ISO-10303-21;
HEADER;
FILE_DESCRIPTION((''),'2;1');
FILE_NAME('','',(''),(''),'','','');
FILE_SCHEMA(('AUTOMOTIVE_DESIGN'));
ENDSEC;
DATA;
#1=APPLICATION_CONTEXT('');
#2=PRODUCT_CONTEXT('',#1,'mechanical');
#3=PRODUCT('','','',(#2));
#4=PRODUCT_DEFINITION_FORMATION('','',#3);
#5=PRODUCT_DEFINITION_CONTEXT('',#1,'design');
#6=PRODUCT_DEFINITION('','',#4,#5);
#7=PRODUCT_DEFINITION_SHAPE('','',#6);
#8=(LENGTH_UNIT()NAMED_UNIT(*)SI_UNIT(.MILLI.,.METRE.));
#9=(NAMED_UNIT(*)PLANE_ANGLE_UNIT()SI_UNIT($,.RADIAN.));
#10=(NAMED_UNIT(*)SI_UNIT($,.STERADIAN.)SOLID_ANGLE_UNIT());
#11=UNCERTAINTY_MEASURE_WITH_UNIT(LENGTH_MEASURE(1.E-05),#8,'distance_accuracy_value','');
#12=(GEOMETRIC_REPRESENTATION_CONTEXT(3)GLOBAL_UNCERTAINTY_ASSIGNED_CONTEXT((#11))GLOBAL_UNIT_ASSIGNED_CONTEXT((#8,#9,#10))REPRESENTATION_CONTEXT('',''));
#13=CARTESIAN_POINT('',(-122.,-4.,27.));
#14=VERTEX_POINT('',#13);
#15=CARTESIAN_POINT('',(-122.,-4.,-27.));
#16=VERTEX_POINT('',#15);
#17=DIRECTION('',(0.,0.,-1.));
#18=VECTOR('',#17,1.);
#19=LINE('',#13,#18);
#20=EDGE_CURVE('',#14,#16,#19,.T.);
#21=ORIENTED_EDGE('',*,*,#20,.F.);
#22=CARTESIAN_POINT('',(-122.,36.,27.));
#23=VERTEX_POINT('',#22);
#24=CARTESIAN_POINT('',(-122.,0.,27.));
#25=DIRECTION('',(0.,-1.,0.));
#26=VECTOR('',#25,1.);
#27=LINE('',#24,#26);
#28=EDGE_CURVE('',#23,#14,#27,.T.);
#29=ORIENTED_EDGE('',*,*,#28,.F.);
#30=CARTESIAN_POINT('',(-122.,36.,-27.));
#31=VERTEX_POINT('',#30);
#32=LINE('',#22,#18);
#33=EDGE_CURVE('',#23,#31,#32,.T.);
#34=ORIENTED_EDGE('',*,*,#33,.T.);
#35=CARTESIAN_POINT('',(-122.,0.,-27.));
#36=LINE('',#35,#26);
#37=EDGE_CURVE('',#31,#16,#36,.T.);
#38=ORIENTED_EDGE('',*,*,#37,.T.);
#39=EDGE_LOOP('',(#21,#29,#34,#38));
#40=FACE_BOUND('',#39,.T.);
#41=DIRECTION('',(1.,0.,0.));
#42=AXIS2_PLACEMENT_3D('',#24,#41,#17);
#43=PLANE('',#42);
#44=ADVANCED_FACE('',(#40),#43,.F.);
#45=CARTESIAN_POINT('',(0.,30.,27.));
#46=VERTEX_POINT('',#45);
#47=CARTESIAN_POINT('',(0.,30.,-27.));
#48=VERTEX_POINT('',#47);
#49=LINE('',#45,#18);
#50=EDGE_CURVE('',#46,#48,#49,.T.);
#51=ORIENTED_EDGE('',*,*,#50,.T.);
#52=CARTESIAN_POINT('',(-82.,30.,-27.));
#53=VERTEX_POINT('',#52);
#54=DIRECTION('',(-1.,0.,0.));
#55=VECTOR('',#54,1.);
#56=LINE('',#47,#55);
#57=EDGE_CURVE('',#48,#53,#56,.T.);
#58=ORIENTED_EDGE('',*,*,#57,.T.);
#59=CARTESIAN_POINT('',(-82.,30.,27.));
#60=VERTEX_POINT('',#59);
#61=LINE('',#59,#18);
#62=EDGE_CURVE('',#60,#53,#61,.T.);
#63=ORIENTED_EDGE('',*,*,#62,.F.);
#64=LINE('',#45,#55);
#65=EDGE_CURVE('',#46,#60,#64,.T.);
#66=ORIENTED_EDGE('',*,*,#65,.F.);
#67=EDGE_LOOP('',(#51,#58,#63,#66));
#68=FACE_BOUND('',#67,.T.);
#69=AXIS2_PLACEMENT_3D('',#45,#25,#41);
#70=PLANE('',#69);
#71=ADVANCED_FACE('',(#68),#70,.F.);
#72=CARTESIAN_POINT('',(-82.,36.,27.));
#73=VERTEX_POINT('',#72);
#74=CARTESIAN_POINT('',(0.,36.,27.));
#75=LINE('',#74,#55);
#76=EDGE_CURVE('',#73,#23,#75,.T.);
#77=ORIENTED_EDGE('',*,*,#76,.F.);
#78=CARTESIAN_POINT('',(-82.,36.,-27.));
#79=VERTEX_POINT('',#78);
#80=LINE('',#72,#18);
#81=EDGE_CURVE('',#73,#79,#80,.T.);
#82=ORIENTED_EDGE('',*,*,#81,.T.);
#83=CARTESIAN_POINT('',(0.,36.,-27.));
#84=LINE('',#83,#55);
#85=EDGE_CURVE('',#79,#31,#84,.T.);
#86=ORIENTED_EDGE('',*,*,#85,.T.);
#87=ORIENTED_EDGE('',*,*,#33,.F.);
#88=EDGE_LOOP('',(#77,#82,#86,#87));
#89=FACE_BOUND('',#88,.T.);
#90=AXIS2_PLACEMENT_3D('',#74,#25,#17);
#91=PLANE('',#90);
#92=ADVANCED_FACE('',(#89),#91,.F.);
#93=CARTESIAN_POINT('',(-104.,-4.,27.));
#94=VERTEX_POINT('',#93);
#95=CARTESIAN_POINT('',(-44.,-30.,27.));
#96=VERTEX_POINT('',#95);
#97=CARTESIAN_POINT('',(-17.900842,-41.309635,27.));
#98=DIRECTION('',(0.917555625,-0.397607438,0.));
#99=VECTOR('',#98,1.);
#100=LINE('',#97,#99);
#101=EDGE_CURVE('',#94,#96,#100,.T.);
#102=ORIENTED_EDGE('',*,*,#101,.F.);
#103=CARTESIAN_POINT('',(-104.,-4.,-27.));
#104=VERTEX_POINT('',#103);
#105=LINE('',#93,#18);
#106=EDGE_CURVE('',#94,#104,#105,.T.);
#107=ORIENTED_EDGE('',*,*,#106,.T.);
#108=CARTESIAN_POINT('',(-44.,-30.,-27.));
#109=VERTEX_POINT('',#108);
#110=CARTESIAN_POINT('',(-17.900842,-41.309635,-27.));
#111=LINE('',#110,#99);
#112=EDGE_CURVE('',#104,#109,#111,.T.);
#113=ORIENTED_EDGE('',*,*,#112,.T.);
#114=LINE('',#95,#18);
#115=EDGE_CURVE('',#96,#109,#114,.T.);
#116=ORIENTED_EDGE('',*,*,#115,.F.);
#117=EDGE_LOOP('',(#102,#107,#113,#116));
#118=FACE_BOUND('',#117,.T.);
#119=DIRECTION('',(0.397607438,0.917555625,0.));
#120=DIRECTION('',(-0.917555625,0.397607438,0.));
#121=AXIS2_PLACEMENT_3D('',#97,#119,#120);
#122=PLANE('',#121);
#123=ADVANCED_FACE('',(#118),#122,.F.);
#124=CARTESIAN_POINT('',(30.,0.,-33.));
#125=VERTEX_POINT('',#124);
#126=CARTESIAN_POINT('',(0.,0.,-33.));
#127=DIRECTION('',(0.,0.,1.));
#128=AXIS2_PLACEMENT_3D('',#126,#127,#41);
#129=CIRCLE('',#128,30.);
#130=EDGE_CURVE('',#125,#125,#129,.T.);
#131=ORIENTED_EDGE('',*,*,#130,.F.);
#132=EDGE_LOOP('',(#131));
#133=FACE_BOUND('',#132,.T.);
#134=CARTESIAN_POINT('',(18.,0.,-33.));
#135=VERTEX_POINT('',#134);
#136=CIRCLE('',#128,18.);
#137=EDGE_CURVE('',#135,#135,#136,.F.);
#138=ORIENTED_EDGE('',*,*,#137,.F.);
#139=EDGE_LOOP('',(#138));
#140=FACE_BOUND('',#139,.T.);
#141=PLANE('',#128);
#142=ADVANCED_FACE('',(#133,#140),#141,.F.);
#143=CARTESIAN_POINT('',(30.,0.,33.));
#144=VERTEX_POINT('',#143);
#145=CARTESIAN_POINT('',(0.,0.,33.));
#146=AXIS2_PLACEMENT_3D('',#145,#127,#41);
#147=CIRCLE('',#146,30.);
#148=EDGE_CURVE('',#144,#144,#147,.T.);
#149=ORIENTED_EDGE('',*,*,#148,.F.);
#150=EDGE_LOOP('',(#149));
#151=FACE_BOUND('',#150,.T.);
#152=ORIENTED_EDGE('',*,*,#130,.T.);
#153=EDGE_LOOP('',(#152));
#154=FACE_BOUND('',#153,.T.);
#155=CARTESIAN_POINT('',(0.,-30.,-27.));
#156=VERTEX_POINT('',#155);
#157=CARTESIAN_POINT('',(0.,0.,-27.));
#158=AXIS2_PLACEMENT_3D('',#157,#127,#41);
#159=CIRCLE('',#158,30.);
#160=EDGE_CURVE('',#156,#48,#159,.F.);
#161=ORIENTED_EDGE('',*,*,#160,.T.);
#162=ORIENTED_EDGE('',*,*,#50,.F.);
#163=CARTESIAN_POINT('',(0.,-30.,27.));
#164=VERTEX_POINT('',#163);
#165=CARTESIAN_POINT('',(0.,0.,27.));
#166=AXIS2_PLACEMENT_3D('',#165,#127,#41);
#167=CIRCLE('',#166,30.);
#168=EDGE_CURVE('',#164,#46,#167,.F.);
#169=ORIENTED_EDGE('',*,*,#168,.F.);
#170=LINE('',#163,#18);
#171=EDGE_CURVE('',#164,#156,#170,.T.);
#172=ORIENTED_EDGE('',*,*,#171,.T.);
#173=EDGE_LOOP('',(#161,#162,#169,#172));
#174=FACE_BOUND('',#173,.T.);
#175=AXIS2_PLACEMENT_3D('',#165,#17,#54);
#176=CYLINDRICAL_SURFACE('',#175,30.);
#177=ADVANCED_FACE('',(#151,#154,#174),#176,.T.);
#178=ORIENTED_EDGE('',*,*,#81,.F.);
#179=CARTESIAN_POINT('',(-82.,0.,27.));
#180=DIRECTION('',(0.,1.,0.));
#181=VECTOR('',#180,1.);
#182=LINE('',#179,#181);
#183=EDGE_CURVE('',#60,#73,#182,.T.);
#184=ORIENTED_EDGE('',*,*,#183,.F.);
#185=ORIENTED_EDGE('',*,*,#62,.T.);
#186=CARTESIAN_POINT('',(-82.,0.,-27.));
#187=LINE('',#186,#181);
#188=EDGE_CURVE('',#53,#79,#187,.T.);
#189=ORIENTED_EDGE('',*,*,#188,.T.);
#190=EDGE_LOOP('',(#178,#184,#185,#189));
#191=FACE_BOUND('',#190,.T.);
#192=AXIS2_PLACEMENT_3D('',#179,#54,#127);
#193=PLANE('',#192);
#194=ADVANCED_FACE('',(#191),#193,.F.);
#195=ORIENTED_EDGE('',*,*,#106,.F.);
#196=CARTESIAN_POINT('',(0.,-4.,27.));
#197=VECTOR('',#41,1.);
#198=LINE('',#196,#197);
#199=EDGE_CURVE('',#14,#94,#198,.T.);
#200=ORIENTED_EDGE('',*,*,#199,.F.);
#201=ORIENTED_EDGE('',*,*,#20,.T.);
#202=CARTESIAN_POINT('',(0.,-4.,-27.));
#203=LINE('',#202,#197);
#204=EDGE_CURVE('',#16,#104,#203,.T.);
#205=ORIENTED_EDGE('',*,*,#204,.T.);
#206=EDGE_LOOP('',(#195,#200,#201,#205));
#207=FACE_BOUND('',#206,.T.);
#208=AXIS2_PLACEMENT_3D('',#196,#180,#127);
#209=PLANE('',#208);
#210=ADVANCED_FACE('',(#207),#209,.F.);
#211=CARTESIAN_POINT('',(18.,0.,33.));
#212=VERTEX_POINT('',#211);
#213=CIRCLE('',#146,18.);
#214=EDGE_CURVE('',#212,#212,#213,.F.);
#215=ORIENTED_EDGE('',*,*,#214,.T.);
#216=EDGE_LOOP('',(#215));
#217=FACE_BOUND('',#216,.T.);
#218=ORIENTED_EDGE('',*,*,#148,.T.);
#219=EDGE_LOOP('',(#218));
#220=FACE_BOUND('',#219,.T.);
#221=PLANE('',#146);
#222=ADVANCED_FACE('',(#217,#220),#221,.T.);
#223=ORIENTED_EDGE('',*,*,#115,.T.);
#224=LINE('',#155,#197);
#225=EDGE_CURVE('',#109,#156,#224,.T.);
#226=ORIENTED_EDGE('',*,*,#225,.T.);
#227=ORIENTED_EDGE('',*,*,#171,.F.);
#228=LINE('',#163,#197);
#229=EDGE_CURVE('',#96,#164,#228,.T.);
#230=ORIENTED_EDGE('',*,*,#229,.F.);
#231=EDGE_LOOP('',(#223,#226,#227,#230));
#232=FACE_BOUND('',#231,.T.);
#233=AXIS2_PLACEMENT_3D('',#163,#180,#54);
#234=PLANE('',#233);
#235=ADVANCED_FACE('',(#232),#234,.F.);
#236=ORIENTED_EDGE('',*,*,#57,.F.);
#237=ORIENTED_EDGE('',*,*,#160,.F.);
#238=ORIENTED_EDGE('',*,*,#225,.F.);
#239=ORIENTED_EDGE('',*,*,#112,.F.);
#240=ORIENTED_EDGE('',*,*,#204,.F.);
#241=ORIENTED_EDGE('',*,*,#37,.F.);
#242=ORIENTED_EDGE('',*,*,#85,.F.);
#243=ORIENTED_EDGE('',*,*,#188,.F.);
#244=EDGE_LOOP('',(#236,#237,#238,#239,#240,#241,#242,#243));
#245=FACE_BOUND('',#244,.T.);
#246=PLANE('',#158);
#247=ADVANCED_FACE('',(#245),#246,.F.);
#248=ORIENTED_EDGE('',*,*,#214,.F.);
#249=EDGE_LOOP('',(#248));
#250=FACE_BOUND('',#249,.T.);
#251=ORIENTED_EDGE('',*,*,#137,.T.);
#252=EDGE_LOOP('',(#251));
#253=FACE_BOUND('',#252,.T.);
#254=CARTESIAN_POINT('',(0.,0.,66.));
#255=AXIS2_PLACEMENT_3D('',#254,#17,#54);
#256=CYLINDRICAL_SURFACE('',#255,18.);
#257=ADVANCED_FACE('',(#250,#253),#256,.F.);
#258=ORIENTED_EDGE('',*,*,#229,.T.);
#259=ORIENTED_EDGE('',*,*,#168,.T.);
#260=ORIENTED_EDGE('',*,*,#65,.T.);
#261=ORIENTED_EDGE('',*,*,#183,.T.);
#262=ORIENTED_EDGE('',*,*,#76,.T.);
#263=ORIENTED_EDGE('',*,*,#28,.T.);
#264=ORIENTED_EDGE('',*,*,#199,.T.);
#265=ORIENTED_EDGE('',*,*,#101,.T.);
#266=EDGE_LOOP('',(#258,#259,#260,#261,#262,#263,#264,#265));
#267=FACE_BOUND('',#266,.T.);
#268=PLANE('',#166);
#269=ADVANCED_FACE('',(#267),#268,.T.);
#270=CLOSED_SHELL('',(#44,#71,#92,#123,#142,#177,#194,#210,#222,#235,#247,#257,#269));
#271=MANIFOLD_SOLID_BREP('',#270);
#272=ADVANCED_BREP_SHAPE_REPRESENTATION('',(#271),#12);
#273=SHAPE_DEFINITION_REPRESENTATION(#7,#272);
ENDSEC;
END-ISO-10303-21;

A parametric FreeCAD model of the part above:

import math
import FreeCAD as App
import Part
import Sketcher

V = App.Vector
Q = App.Units.Quantity

doc = App.newDocument("Part")
body = doc.addObject("PartDesign::Body", "Body")

# Sketch on XY plane
sketch1 = body.newObject("Sketcher::SketchObject", "Sketch")
sketch1.AttachmentSupport = (doc.getObject("XY_Plane"), [""])
sketch1.MapMode = "FlatFace"
sketch1.addGeometry([
    Part.LineSegment(V(0, 30, 0), V(-82, 30, 0)),  # 0
    Part.LineSegment(V(-82, 30, 0), V(-82, 36, 0)),  # 1
    Part.LineSegment(V(-82, 36, 0), V(-122, 36, 0)),  # 2
    Part.LineSegment(V(-122, 36, 0), V(-122, -4, 0)),  # 3
    Part.LineSegment(V(-122, -4, 0), V(-104, -4, 0)),  # 4
    Part.LineSegment(V(-104, -4, 0), V(-44, -30, 0)),  # 5
    Part.LineSegment(V(-44, -30, 0), V(0, -30, 0)),  # 6
    Part.ArcOfCircle(Part.Circle(V(0, 0, 0), V(0, 0, 1), 30), math.radians(-90), math.radians(90)),  # 7
], False)
sketch1.addConstraint([
    Sketcher.Constraint("Coincident", 0, 2, 1, 1),
    Sketcher.Constraint("Coincident", 1, 2, 2, 1),
    Sketcher.Constraint("Coincident", 2, 2, 3, 1),
    Sketcher.Constraint("Coincident", 3, 2, 4, 1),
    Sketcher.Constraint("Coincident", 4, 2, 5, 1),
    Sketcher.Constraint("Coincident", 5, 2, 6, 1),
    Sketcher.Constraint("Tangent", 6, 2, 7, 1),
    Sketcher.Constraint("Tangent", 7, 2, 0, 1),
    Sketcher.Constraint("Horizontal", 0),
    Sketcher.Constraint("Vertical", 1),
    Sketcher.Constraint("Horizontal", 2),
    Sketcher.Constraint("Vertical", 3),
    Sketcher.Constraint("Horizontal", 4),
    Sketcher.Constraint("Horizontal", 6),
    Sketcher.Constraint("Coincident", 7, 3, -1, 1),
    Sketcher.Constraint("Equal", 2, 3),
    Sketcher.Constraint("Radius", 7, Q("30 mm")),
    Sketcher.Constraint("DistanceX", 0, 2, 0, 1, Q("82 mm")),
    Sketcher.Constraint("DistanceX", 2, 2, 2, 1, Q("40 mm")),
    Sketcher.Constraint("DistanceX", 4, 1, 4, 2, Q("18 mm")),
    Sketcher.Constraint("DistanceX", 6, 1, 6, 2, Q("44 mm")),
    Sketcher.Constraint("DistanceY", 1, 1, 1, 2, Q("6 mm")),
])
pad1 = body.newObject("PartDesign::Pad", "Pad")
pad1.Profile = sketch1
pad1.Length = 54
pad1.Midplane = True

# Sketch on XY plane
sketch2 = body.newObject("Sketcher::SketchObject", "Sketch001")
sketch2.AttachmentSupport = (doc.getObject("XY_Plane"), [""])
sketch2.MapMode = "FlatFace"
sketch2.addGeometry(Part.Circle(V(0, 0, 0), V(0, 0, 1), 30), False)
sketch2.addConstraint([
    Sketcher.Constraint("Coincident", 0, 3, -1, 1),
    Sketcher.Constraint("Diameter", 0, Q("60 mm")),
])
pad2 = body.newObject("PartDesign::Pad", "Pad001")
pad2.Profile = sketch2
pad2.Length = 66
pad2.Midplane = True

# Sketch on XY plane
sketch3 = body.newObject("Sketcher::SketchObject", "Sketch002")
sketch3.AttachmentSupport = (doc.getObject("XY_Plane"), [""])
sketch3.MapMode = "FlatFace"
sketch3.addGeometry(Part.Circle(V(0, 0, 0), V(0, 0, 1), 18), False)
sketch3.addConstraint([
    Sketcher.Constraint("Coincident", 0, 3, -1, 1),
    Sketcher.Constraint("Diameter", 0, Q("36 mm")),
])
pocket1 = body.newObject("PartDesign::Pocket", "Pocket")
pocket1.Profile = sketch3
pocket1.Type = "ThroughAll"
pocket1.Midplane = True

doc.recompute()
